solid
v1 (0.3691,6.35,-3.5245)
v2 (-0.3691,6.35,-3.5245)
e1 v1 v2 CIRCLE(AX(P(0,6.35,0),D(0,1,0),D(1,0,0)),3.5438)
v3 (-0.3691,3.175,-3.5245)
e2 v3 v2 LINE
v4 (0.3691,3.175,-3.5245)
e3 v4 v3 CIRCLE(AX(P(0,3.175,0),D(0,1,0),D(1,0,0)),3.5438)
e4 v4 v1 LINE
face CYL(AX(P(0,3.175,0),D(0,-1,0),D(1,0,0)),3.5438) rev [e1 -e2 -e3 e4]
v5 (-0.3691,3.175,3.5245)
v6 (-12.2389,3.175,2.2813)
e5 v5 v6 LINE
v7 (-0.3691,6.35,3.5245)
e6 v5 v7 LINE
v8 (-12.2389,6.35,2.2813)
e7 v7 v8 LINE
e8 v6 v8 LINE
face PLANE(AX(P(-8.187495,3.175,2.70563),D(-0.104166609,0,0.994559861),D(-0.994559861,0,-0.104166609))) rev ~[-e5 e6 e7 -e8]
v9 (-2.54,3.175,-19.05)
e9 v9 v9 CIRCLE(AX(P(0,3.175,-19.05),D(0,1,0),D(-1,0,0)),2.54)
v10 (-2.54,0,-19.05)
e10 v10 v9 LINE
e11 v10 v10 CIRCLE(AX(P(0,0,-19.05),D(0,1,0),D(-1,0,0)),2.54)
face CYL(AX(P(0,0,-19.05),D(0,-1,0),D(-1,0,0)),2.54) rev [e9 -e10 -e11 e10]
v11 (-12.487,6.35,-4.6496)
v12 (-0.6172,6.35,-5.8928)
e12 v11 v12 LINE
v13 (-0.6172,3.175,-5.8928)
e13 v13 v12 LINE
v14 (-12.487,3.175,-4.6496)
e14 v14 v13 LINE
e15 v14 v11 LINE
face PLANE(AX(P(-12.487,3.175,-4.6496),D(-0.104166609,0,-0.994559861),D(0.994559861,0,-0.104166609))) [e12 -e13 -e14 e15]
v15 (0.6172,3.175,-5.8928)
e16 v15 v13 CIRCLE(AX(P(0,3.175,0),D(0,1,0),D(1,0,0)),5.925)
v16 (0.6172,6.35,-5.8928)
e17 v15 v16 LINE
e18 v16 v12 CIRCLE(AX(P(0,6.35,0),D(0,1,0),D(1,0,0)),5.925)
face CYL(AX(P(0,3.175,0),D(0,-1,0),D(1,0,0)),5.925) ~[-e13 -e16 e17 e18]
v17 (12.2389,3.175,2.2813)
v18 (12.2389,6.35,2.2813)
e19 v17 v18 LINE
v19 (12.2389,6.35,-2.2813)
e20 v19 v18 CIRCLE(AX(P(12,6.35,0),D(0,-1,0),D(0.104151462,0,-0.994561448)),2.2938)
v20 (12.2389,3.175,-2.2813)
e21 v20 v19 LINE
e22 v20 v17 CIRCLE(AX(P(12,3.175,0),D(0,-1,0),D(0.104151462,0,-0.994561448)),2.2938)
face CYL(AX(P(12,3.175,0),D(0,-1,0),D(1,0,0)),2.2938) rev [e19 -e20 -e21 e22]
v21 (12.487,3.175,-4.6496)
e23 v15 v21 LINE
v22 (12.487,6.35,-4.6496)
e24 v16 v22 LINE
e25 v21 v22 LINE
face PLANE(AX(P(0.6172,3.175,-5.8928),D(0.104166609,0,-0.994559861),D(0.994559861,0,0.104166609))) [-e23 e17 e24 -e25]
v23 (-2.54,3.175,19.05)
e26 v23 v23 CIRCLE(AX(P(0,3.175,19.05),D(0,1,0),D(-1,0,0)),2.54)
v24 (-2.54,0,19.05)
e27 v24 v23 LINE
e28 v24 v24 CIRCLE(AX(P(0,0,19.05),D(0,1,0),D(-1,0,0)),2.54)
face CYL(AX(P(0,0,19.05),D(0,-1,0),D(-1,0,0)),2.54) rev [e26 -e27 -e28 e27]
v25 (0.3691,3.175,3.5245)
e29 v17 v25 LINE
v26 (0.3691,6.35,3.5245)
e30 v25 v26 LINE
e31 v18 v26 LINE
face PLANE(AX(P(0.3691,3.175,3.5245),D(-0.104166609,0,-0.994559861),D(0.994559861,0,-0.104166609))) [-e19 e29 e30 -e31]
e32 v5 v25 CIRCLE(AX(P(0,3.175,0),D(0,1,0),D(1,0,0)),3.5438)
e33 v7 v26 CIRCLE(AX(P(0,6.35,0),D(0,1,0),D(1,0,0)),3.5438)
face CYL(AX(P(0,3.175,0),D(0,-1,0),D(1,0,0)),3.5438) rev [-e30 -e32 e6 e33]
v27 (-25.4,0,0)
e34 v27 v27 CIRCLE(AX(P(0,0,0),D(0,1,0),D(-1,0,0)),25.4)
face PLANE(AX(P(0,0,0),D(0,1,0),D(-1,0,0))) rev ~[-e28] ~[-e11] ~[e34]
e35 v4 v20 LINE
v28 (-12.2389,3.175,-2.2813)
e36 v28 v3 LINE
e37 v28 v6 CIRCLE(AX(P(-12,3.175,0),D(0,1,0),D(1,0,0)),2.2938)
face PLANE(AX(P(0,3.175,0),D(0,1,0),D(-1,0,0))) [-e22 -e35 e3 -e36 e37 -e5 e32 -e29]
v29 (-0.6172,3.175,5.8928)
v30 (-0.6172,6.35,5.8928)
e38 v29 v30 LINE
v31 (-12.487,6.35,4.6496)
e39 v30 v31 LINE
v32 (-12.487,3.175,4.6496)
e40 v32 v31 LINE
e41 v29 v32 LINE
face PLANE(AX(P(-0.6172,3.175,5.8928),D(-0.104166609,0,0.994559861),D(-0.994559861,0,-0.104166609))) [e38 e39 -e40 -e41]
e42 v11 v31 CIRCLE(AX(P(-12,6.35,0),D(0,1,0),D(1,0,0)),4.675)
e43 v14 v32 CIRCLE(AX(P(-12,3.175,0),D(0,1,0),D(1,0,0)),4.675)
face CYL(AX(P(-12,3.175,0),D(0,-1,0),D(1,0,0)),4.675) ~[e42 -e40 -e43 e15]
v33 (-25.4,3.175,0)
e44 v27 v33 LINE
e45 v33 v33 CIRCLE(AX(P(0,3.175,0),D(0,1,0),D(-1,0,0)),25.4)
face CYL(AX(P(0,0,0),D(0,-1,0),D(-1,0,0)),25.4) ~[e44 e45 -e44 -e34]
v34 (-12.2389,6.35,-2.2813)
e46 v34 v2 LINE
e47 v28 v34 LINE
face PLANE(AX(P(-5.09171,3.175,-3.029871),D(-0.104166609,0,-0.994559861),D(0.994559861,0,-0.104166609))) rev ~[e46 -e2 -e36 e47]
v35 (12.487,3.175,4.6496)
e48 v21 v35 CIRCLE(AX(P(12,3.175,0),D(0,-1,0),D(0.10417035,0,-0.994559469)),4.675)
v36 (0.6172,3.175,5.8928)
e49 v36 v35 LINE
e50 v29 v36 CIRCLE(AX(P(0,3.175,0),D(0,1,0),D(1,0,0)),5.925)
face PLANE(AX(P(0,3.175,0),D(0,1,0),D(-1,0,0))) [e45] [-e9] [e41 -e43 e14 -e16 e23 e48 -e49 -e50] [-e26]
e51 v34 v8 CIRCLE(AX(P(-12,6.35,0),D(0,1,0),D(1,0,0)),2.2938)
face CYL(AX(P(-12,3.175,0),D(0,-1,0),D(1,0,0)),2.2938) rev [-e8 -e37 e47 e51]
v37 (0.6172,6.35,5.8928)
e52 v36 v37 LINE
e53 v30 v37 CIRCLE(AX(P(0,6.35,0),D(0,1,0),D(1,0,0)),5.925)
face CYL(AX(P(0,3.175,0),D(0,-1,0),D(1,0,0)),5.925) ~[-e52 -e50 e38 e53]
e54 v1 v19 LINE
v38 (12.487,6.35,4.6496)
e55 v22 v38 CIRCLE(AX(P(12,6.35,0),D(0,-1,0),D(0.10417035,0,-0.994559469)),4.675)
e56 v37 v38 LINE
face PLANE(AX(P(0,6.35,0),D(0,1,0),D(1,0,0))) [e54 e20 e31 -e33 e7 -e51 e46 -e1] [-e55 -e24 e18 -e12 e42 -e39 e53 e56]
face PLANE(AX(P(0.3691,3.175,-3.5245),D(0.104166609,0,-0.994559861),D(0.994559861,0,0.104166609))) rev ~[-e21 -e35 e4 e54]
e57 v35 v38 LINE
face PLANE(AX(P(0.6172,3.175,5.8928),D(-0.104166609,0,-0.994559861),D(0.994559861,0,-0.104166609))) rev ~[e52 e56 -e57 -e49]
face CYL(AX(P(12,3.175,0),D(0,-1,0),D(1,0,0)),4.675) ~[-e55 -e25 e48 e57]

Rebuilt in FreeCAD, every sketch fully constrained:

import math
import FreeCAD as App
import Part
import Sketcher
from FreeCAD import Vector
Q = App.Units.Quantity

doc = App.newDocument("Part")
body = doc.addObject("PartDesign::Body", "Body")

sketch1 = body.newObject("Sketcher::SketchObject", "Sketch")
sketch1.AttachmentSupport = (doc.getObject("XZ_Plane"), [""])
sketch1.MapMode = "FlatFace"
sketch1.addGeometry(Part.Circle(Vector(0, 0, 0), Vector(0, 0, 1), 25.4), False)
sketch1.addGeometry(Part.Circle(Vector(0, -19.1, 0), Vector(0, 0, 1), 2.5), False)
sketch1.addGeometry(Part.Circle(Vector(0, 19.1, 0), Vector(0, 0, 1), 2.5), False)
sketch1.addConstraint(Sketcher.Constraint("Coincident", 0, 3, -1, 1))
sketch1.addConstraint(Sketcher.Constraint("Equal", 1, 2))
sketch1.addConstraint(Sketcher.Constraint("Symmetric", 1, 3, 2, 3, -1, 1))
sketch1.addConstraint(Sketcher.Constraint("PointOnObject", 1, 3, -2))
sketch1.addConstraint(Sketcher.Constraint("Diameter", 0, Q("2 in")))
sketch1.addConstraint(Sketcher.Constraint("Diameter", 1, Q("0.2 in")))
sketch1.addConstraint(Sketcher.Constraint("DistanceY", 1, 3, 2, 3, Q("1.5 in")))
pad1 = body.newObject("PartDesign::Pad", "Pad")
pad1.Profile = sketch1
pad1.Length = Q("0.125 in")
pad1.Reversed = True

sketch2 = body.newObject("Sketcher::SketchObject", "Sketch001")
sketch2.AttachmentSupport = (doc.getObject("XZ_Plane"), [""])
sketch2.MapMode = "FlatFace"
sketch2.AttachmentOffset = App.Placement(Vector(0, 0, -0.125 * 25.4), App.Rotation())
sketch2.addGeometry(Part.ArcOfCircle(Part.Circle(Vector(0, 0, 0), Vector(0, 0, 1), 5.9), math.radians(-95.98), math.radians(-84.02)), False)
sketch2.addGeometry(Part.LineSegment(Vector(-0.6, -5.9, 0), Vector(-12.5, -4.6, 0)), False)
sketch2.addGeometry(Part.ArcOfCircle(Part.Circle(Vector(-12, 0, 0), Vector(0, 0, 1), 4.7), math.radians(96), math.radians(264)), False)
sketch2.addGeometry(Part.LineSegment(Vector(-12.5, 4.6, 0), Vector(-0.6, 5.9, 0)), False)
sketch2.addGeometry(Part.ArcOfCircle(Part.Circle(Vector(0, 0, 0), Vector(0, 0, 1), 5.9), math.radians(84.02), math.radians(95.98)), False)
sketch2.addGeometry(Part.LineSegment(Vector(0.6, 5.9, 0), Vector(12.5, 4.6, 0)), False)
sketch2.addGeometry(Part.ArcOfCircle(Part.Circle(Vector(12, 0, 0), Vector(0, 0, 1), 4.7), math.radians(-84), math.radians(84)), False)
sketch2.addGeometry(Part.LineSegment(Vector(12.5, -4.6, 0), Vector(0.6, -5.9, 0)), False)
sketch2.addGeometry(Part.ArcOfCircle(Part.Circle(Vector(0, 0, 0), Vector(0, 0, 1), 3.5), math.radians(-95.98), math.radians(-84.02)), False)
sketch2.addGeometry(Part.LineSegment(Vector(0.4, -3.5, 0), Vector(12.2, -2.3, 0)), False)
sketch2.addGeometry(Part.ArcOfCircle(Part.Circle(Vector(12, 0, 0), Vector(0, 0, 1), 2.3), math.radians(-84), math.radians(84)), False)
sketch2.addGeometry(Part.LineSegment(Vector(12.2, 2.3, 0), Vector(0.4, 3.5, 0)), False)
sketch2.addGeometry(Part.ArcOfCircle(Part.Circle(Vector(0, 0, 0), Vector(0, 0, 1), 3.5), math.radians(84.02), math.radians(95.98)), False)
sketch2.addGeometry(Part.LineSegment(Vector(-0.4, 3.5, 0), Vector(-12.2, 2.3, 0)), False)
sketch2.addGeometry(Part.ArcOfCircle(Part.Circle(Vector(-12, 0, 0), Vector(0, 0, 1), 2.3), math.radians(96), math.radians(264)), False)
sketch2.addGeometry(Part.LineSegment(Vector(-12.2, -2.3, 0), Vector(-0.4, -3.5, 0)), False)
sketch2.addConstraint(Sketcher.Constraint("Tangent", 0, 1, 1, 1))
sketch2.addConstraint(Sketcher.Constraint("Tangent", 1, 2, 2, 2))
sketch2.addConstraint(Sketcher.Constraint("Tangent", 2, 1, 3, 1))
sketch2.addConstraint(Sketcher.Constraint("Tangent", 3, 2, 4, 2))
sketch2.addConstraint(Sketcher.Constraint("Tangent", 4, 1, 5, 1))
sketch2.addConstraint(Sketcher.Constraint("Tangent", 5, 2, 6, 2))
sketch2.addConstraint(Sketcher.Constraint("Tangent", 6, 1, 7, 1))
sketch2.addConstraint(Sketcher.Constraint("Tangent", 7, 2, 0, 2))
sketch2.addConstraint(Sketcher.Constraint("Tangent", 8, 2, 9, 1))
sketch2.addConstraint(Sketcher.Constraint("Tangent", 9, 2, 10, 1))
sketch2.addConstraint(Sketcher.Constraint("Tangent", 10, 2, 11, 1))
sketch2.addConstraint(Sketcher.Constraint("Tangent", 11, 2, 12, 1))
sketch2.addConstraint(Sketcher.Constraint("Tangent", 12, 2, 13, 1))
sketch2.addConstraint(Sketcher.Constraint("Tangent", 13, 2, 14, 1))
sketch2.addConstraint(Sketcher.Constraint("Tangent", 14, 2, 15, 1))
sketch2.addConstraint(Sketcher.Constraint("Tangent", 15, 2, 8, 1))
sketch2.addConstraint(Sketcher.Constraint("Coincident", 0, 3, -1, 1))
sketch2.addConstraint(Sketcher.Constraint("Coincident", 4, 3, -1, 1))
sketch2.addConstraint(Sketcher.Constraint("Coincident", 8, 3, -1, 1))
sketch2.addConstraint(Sketcher.Constraint("Coincident", 12, 3, -1, 1))
sketch2.addConstraint(Sketcher.Constraint("Coincident", 10, 3, 6, 3))
sketch2.addConstraint(Sketcher.Constraint("Coincident", 14, 3, 2, 3))
sketch2.addConstraint(Sketcher.Constraint("Equal", 0, 4))
sketch2.addConstraint(Sketcher.Constraint("Equal", 2, 6))
sketch2.addConstraint(Sketcher.Constraint("Equal", 8, 12))
sketch2.addConstraint(Sketcher.Constraint("Equal", 10, 14))
sketch2.addConstraint(Sketcher.Constraint("Symmetric", 2, 3, 6, 3, -1, 1))
sketch2.addConstraint(Sketcher.Constraint("PointOnObject", 2, 3, -1))
sketch2.addConstraint(Sketcher.Constraint("Parallel", 7, 9))
sketch2.addConstraint(Sketcher.Constraint("Radius", 10, Q("0.0903 in")))
sketch2.addConstraint(Sketcher.Constraint("Angle", 1, Q("174.0208 deg")))
sketch2.addConstraint(Sketcher.Constraint("Radius", 0, 5.925))
sketch2.addConstraint(Sketcher.Constraint("Radius", 2, 4.675))
pad2 = body.newObject("PartDesign::Pad", "Pad001")
pad2.Profile = sketch2
pad2.Length = Q("0.125 in")
pad2.Reversed = True

doc.recompute()
